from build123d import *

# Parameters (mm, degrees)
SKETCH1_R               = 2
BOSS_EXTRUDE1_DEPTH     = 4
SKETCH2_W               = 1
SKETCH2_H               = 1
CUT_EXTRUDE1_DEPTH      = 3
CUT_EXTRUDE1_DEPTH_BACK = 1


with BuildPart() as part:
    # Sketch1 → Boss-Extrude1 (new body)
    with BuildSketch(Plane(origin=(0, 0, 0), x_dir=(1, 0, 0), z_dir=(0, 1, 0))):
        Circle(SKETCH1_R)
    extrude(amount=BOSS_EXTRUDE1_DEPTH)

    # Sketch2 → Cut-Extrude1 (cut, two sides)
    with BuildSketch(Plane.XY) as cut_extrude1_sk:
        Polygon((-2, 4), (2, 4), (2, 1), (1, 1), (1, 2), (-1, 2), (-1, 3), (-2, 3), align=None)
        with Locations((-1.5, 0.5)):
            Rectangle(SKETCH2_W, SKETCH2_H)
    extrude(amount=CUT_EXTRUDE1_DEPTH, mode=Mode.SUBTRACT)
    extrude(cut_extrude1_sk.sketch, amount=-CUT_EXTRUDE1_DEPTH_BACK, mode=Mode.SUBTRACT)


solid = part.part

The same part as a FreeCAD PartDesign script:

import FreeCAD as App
import Part
import Sketcher

V = App.Vector
Q = App.Units.Quantity

doc = App.newDocument("Part")
body = doc.addObject("PartDesign::Body", "Body")

# Sketch on XZ plane
sketch1 = body.newObject("Sketcher::SketchObject", "Sketch")
sketch1.AttachmentSupport = (doc.getObject("XZ_Plane"), [""])
sketch1.MapMode = "FlatFace"
sketch1.addGeometry(Part.Circle(V(0, 0, 0), V(0, 0, 1), 2), False)
sketch1.addConstraint([
    Sketcher.Constraint("Coincident", 0, 3, -1, 1),
    Sketcher.Constraint("Diameter", 0, Q("4 mm")),
])
pad1 = body.newObject("PartDesign::Pad", "Pad")
pad1.Profile = sketch1
pad1.Length = 4
pad1.Reversed = True

# Sketch on XY plane
sketch2 = body.newObject("Sketcher::SketchObject", "Sketch001")
sketch2.AttachmentSupport = (doc.getObject("XY_Plane"), [""])
sketch2.MapMode = "FlatFace"
sketch2.addGeometry([
    Part.LineSegment(V(2, 4, 0), V(-2, 4, 0)),  # 0
    Part.LineSegment(V(-2, 4, 0), V(-2, 3, 0)),  # 1
    Part.LineSegment(V(-2, 3, 0), V(-1, 3, 0)),  # 2
    Part.LineSegment(V(-1, 3, 0), V(-1, 2, 0)),  # 3
    Part.LineSegment(V(-1, 2, 0), V(1, 2, 0)),  # 4
    Part.LineSegment(V(1, 2, 0), V(1, 1, 0)),  # 5
    Part.LineSegment(V(1, 1, 0), V(2, 1, 0)),  # 6
    Part.LineSegment(V(2, 1, 0), V(2, 4, 0)),  # 7
    Part.LineSegment(V(-2, 1, 0), V(-2, 0, 0)),  # 8
    Part.LineSegment(V(-2, 0, 0), V(-1, 0, 0)),  # 9
    Part.LineSegment(V(-1, 0, 0), V(-1, 1, 0)),  # 10
    Part.LineSegment(V(-1, 1, 0), V(-2, 1, 0)),  # 11
], False)
sketch2.addConstraint([
    Sketcher.Constraint("Coincident", 0, 2, 1, 1),
    Sketcher.Constraint("Coincident", 1, 2, 2, 1),
    Sketcher.Constraint("Coincident", 2, 2, 3, 1),
    Sketcher.Constraint("Coincident", 3, 2, 4, 1),
    Sketcher.Constraint("Coincident", 4, 2, 5, 1),
    Sketcher.Constraint("Coincident", 5, 2, 6, 1),
    Sketcher.Constraint("Coincident", 6, 2, 7, 1),
    Sketcher.Constraint("Coincident", 7, 2, 0, 1),
    Sketcher.Constraint("Coincident", 8, 2, 9, 1),
    Sketcher.Constraint("Coincident", 9, 2, 10, 1),
    Sketcher.Constraint("Coincident", 10, 2, 11, 1),
    Sketcher.Constraint("Coincident", 11, 2, 8, 1),
    Sketcher.Constraint("Horizontal", 0),
    Sketcher.Constraint("Vertical", 1),
    Sketcher.Constraint("Horizontal", 2),
    Sketcher.Constraint("Vertical", 3),
    Sketcher.Constraint("Horizontal", 4),
    Sketcher.Constraint("Vertical", 5),
    Sketcher.Constraint("Horizontal", 6),
    Sketcher.Constraint("Vertical", 7),
    Sketcher.Constraint("Vertical", 8),
    Sketcher.Constraint("Horizontal", 9),
    Sketcher.Constraint("Vertical", 10),
    Sketcher.Constraint("Horizontal", 11),
    Sketcher.Constraint("Symmetric", 5, 2, 10, 2, -2),
    Sketcher.Constraint("PointOnObject", 8, 2, -1),
    Sketcher.Constraint("Vertical", 1, 2, 8, 2),
    Sketcher.Constraint("Vertical", 3, 2, 9, 2),
    Sketcher.Constraint("Equal", 2, 6),
    Sketcher.Constraint("Equal", 11, 1),
    Sketcher.Constraint("Equal", 1, 3),
    Sketcher.Constraint("Equal", 3, 5),
    Sketcher.Constraint("Equal", 5, 8),
    Sketcher.Constraint("DistanceX", 0, 2, 0, 1, Q("4 mm")),
    Sketcher.Constraint("DistanceX", 2, 1, 2, 2, Q("1 mm")),
])
pocket1 = body.newObject("PartDesign::Pocket", "Pocket")
pocket1.Profile = sketch2
pocket1.Type = "TwoLengths"
pocket1.Length = 3
pocket1.Length2 = 1
pocket1.Reversed = True

doc.recompute()
